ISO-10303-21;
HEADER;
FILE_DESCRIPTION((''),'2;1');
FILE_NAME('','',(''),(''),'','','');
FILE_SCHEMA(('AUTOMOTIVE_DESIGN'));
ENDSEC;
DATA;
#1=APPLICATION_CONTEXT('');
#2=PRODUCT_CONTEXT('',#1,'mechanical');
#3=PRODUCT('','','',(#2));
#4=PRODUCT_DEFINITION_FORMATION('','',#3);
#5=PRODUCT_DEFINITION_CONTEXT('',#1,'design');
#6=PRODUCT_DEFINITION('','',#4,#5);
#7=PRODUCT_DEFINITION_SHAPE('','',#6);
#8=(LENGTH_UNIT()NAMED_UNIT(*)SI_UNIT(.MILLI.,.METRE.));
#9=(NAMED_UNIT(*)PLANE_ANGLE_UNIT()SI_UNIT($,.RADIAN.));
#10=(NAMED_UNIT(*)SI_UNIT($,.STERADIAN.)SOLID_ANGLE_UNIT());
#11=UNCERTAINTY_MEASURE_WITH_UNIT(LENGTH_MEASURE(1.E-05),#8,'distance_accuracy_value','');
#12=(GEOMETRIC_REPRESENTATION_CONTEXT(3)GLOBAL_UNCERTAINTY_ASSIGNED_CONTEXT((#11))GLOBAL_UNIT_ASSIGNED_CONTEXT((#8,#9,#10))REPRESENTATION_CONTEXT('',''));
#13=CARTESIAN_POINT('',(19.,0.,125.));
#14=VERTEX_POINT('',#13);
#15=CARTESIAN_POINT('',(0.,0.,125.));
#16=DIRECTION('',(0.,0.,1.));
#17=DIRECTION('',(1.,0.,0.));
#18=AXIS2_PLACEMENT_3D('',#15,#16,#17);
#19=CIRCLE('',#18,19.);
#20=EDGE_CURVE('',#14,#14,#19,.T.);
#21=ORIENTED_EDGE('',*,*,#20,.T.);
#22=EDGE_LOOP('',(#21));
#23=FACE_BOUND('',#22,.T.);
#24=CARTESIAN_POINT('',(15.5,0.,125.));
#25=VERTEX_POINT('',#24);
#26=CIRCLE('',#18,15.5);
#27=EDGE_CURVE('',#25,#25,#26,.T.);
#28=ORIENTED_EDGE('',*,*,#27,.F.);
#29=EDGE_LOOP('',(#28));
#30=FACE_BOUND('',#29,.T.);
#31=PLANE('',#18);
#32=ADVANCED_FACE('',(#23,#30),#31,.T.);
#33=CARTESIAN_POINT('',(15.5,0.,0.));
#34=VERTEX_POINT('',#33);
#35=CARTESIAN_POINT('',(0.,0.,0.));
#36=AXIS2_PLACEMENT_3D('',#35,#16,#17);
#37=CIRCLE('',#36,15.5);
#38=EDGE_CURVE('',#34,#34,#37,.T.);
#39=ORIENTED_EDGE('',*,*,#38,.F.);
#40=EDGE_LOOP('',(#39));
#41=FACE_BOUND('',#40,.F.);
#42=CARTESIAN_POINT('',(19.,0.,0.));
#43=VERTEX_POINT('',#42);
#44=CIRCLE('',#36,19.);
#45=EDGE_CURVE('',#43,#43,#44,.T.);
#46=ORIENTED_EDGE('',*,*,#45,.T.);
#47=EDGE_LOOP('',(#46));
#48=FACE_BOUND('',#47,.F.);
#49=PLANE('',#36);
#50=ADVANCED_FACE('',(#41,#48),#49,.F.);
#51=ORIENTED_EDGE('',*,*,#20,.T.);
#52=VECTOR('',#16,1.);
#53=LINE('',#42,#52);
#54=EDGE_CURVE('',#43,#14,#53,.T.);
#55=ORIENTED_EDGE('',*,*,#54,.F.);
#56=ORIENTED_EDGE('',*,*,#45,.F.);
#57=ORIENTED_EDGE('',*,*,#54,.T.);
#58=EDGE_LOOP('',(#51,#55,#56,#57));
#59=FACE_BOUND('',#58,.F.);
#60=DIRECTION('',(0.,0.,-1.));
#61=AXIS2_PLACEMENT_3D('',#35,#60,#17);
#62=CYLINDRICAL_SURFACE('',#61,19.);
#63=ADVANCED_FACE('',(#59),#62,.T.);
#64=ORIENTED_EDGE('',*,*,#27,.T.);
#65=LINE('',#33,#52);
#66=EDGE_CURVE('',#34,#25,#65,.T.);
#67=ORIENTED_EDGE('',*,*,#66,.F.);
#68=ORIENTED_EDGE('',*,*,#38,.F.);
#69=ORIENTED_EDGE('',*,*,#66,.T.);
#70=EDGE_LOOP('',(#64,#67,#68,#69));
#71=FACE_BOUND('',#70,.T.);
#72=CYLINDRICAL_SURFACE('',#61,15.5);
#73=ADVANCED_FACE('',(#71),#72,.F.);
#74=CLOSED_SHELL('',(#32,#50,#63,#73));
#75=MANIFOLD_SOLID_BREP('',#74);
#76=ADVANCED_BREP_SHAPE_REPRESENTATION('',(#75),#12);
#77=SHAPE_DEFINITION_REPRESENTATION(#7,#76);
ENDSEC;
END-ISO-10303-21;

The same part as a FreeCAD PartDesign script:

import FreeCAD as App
import Part
import Sketcher

V = App.Vector
Q = App.Units.Quantity

doc = App.newDocument("Part")
body = doc.addObject("PartDesign::Body", "Body")

# Sketch on XY plane
sketch1 = doc.addObject("Sketcher::SketchObject", "Sketch")
body.addObject(sketch1)
sketch1.AttachmentSupport = (doc.XY_Plane, [""])
sketch1.MapMode = "FlatFace"
sketch1.addGeometry(Part.Circle(V(0, 0, 0), V(0, 0, 1), 19), False)
sketch1.addGeometry(Part.Circle(V(0, 0, 0), V(0, 0, 1), 15.5), False)
sketch1.addConstraint(Sketcher.Constraint("Coincident", 0, 3, -1, 1))
sketch1.addConstraint(Sketcher.Constraint("Coincident", 1, 3, -1, 1))
sketch1.addConstraint(Sketcher.Constraint("Diameter", 0, Q("38 mm")))
sketch1.addConstraint(Sketcher.Constraint("Diameter", 1, Q("31 mm")))
pad1 = doc.addObject("PartDesign::Pad", "Pad")
body.addObject(pad1)
pad1.Profile = sketch1
pad1.Length = 125

doc.recompute()
